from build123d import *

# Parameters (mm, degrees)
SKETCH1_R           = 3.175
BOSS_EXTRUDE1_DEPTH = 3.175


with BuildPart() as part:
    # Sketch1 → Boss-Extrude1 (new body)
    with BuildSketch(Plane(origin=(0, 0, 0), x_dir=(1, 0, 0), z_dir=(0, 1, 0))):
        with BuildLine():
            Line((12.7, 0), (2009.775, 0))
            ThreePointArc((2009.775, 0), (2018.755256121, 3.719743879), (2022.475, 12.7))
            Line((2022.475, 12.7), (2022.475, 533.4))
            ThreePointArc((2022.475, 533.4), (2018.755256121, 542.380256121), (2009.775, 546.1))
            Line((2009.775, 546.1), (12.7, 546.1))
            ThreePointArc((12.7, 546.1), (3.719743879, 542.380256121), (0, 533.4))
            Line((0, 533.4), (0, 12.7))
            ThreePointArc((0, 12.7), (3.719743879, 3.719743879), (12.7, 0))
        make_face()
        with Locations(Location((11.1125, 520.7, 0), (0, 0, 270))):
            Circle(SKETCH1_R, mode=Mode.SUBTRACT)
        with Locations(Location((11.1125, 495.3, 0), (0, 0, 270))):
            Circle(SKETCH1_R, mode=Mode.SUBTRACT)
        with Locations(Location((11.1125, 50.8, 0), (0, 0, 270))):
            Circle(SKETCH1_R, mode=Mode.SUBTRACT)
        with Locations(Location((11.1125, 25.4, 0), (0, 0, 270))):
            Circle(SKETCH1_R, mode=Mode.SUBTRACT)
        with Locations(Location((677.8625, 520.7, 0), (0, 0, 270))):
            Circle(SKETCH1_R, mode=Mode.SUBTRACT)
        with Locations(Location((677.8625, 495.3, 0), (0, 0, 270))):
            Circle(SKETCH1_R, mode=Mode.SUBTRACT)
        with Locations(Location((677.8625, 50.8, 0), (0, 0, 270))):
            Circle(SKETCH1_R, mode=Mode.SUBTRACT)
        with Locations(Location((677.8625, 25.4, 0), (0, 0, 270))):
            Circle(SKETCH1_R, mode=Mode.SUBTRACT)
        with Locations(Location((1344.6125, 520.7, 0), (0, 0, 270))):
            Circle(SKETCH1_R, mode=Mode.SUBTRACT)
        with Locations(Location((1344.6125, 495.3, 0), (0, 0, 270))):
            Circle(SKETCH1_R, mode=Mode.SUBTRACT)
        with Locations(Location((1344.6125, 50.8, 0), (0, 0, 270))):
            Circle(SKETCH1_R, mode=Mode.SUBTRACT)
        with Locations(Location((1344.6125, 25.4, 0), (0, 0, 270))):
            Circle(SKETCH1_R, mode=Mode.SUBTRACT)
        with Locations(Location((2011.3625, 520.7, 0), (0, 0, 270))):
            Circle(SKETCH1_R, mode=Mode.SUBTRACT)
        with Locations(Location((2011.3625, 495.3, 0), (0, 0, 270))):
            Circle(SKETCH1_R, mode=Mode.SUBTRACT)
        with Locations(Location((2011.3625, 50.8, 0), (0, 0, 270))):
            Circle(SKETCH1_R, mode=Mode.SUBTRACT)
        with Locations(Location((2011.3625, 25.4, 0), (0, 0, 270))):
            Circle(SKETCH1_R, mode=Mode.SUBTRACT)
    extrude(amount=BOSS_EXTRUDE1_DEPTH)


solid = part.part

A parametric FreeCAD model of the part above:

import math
import FreeCAD as App
import Part
import Sketcher

V = App.Vector
Q = App.Units.Quantity

doc = App.newDocument("Part")
body = doc.addObject("PartDesign::Body", "Body")

sketch1 = body.newObject("Sketcher::SketchObject", "Sketch")
sketch1.AttachmentSupport = (doc.getObject("XZ_Plane"), [""])
sketch1.MapMode = "FlatFace"
sketch1.addGeometry([
    Part.LineSegment(V(12.7, 0, 0), V(2009.8, 0, 0)),
    Part.ArcOfCircle(Part.Circle(V(2009.8, -12.7, 0), V(0, 0, 1), 12.7), math.radians(0), math.radians(90)),
    Part.LineSegment(V(2022.5, -12.7, 0), V(2022.5, -533.4, 0)),
    Part.ArcOfCircle(Part.Circle(V(2009.8, -533.4, 0), V(0, 0, 1), 12.7), math.radians(-90), math.radians(0)),
    Part.LineSegment(V(2009.8, -546.1, 0), V(12.7, -546.1, 0)),
    Part.ArcOfCircle(Part.Circle(V(12.7, -533.4, 0), V(0, 0, 1), 12.7), math.radians(180), math.radians(270)),
    Part.LineSegment(V(0, -533.4, 0), V(0, -12.7, 0)),
    Part.ArcOfCircle(Part.Circle(V(12.7, -12.7, 0), V(0, 0, 1), 12.7), math.radians(90), math.radians(180)),
    Part.Circle(V(11.1, -25.4, 0), V(0, 0, 1), 3.2),
    Part.Circle(V(11.1, -50.8, 0), V(0, 0, 1), 3.2),
    Part.Circle(V(677.9, -25.4, 0), V(0, 0, 1), 3.2),
    Part.Circle(V(677.9, -50.8, 0), V(0, 0, 1), 3.2),
    Part.Circle(V(1344.6, -25.4, 0), V(0, 0, 1), 3.2),
    Part.Circle(V(1344.6, -50.8, 0), V(0, 0, 1), 3.2),
    Part.Circle(V(2011.4, -25.4, 0), V(0, 0, 1), 3.2),
    Part.Circle(V(2011.4, -50.8, 0), V(0, 0, 1), 3.2),
    Part.Circle(V(11.1, -495.3, 0), V(0, 0, 1), 3.2),
    Part.Circle(V(11.1, -520.7, 0), V(0, 0, 1), 3.2),
    Part.Circle(V(677.9, -495.3, 0), V(0, 0, 1), 3.2),
    Part.Circle(V(677.9, -520.7, 0), V(0, 0, 1), 3.2),
    Part.Circle(V(1344.6, -495.3, 0), V(0, 0, 1), 3.2),
    Part.Circle(V(1344.6, -520.7, 0), V(0, 0, 1), 3.2),
    Part.Circle(V(2011.4, -495.3, 0), V(0, 0, 1), 3.2),
    Part.Circle(V(2011.4, -520.7, 0), V(0, 0, 1), 3.2),
], False)
sketch1.addConstraint([
    Sketcher.Constraint("Tangent", 0, 2, 1, 2),
    Sketcher.Constraint("Tangent", 1, 1, 2, 1),
    Sketcher.Constraint("Tangent", 2, 2, 3, 2),
    Sketcher.Constraint("Tangent", 3, 1, 4, 1),
    Sketcher.Constraint("Tangent", 4, 2, 5, 2),
    Sketcher.Constraint("Tangent", 5, 1, 6, 1),
    Sketcher.Constraint("Tangent", 6, 2, 7, 2),
    Sketcher.Constraint("Tangent", 7, 1, 0, 1),
    Sketcher.Constraint("Horizontal", 0),
    Sketcher.Constraint("Vertical", 2),
    Sketcher.Constraint("Horizontal", 4),
    Sketcher.Constraint("Vertical", 6),
    Sketcher.Constraint("Equal", 1, 3),
    Sketcher.Constraint("Equal", 3, 5),
    Sketcher.Constraint("Equal", 5, 7),
    Sketcher.Constraint("Equal", 8, 9),
    Sketcher.Constraint("Equal", 9, 10),
    Sketcher.Constraint("Equal", 10, 11),
    Sketcher.Constraint("Equal", 11, 12),
    Sketcher.Constraint("Equal", 12, 13),
    Sketcher.Constraint("Equal", 13, 14),
    Sketcher.Constraint("Equal", 14, 15),
    Sketcher.Constraint("Equal", 15, 16),
    Sketcher.Constraint("Equal", 16, 17),
    Sketcher.Constraint("Equal", 17, 18),
    Sketcher.Constraint("Equal", 18, 19),
    Sketcher.Constraint("Equal", 19, 20),
    Sketcher.Constraint("Equal", 20, 21),
    Sketcher.Constraint("Equal", 21, 22),
    Sketcher.Constraint("Equal", 22, 23),
    Sketcher.Constraint("PointOnObject", 0, 2, -1),
    Sketcher.Constraint("PointOnObject", 5, 1, -2),
    Sketcher.Constraint("Horizontal", 8, 3, 10, 3),
    Sketcher.Constraint("Horizontal", 9, 3, 11, 3),
    Sketcher.Constraint("Horizontal", 10, 3, 12, 3),
    Sketcher.Constraint("Horizontal", 11, 3, 13, 3),
    Sketcher.Constraint("Horizontal", 12, 3, 14, 3),
    Sketcher.Constraint("Horizontal", 13, 3, 15, 3),
    Sketcher.Constraint("Horizontal", 16, 3, 18, 3),
    Sketcher.Constraint("Horizontal", 17, 3, 19, 3),
    Sketcher.Constraint("Horizontal", 18, 3, 20, 3),
    Sketcher.Constraint("Horizontal", 19, 3, 21, 3),
    Sketcher.Constraint("Horizontal", 20, 3, 22, 3),
    Sketcher.Constraint("Horizontal", 21, 3, 23, 3),
    Sketcher.Constraint("Vertical", 8, 3, 9, 3),
    Sketcher.Constraint("Vertical", 10, 3, 11, 3),
    Sketcher.Constraint("Vertical", 12, 3, 13, 3),
    Sketcher.Constraint("Vertical", 14, 3, 15, 3),
    Sketcher.Constraint("Vertical", 9, 3, 16, 3),
    Sketcher.Constraint("Vertical", 16, 3, 17, 3),
    Sketcher.Constraint("Vertical", 11, 3, 18, 3),
    Sketcher.Constraint("Vertical", 18, 3, 19, 3),
    Sketcher.Constraint("Vertical", 13, 3, 20, 3),
    Sketcher.Constraint("Vertical", 20, 3, 21, 3),
    Sketcher.Constraint("Vertical", 15, 3, 22, 3),
    Sketcher.Constraint("Vertical", 22, 3, 23, 3),
    Sketcher.Constraint("Radius", 1, Q("0.5 in")),
    Sketcher.Constraint("Diameter", 8, Q("0.25 in")),
    Sketcher.Constraint("DistanceY", 2, 2, 2, 1, Q("20.5 in")),
    Sketcher.Constraint("DistanceY", 8, 3, -1, 1, Q("1 in")),
    Sketcher.Constraint("DistanceY", 9, 3, -1, 1, Q("2 in")),
    Sketcher.Constraint("DistanceY", 16, 3, 7, 3, Q("19 in")),
    Sketcher.Constraint("DistanceY", 17, 3, 16, 3, Q("1 in")),
    Sketcher.Constraint("DistanceX", 10, 3, 14, 3, Q("52.5 in")),
    Sketcher.Constraint("DistanceX", 0, 1, 0, 2, Q("78.625 in")),
    Sketcher.Constraint("DistanceX", 8, 3, 10, 3, Q("26.25 in")),
    Sketcher.Constraint("DistanceX", 10, 3, 12, 3, Q("26.25 in")),
    Sketcher.Constraint("DistanceX", -1, 1, 8, 3, Q("0.4375 in")),
])
pad1 = body.newObject("PartDesign::Pad", "Pad")
pad1.Profile = sketch1
pad1.Length = Q("0.125 in")
pad1.Reversed = True

doc.recompute()
